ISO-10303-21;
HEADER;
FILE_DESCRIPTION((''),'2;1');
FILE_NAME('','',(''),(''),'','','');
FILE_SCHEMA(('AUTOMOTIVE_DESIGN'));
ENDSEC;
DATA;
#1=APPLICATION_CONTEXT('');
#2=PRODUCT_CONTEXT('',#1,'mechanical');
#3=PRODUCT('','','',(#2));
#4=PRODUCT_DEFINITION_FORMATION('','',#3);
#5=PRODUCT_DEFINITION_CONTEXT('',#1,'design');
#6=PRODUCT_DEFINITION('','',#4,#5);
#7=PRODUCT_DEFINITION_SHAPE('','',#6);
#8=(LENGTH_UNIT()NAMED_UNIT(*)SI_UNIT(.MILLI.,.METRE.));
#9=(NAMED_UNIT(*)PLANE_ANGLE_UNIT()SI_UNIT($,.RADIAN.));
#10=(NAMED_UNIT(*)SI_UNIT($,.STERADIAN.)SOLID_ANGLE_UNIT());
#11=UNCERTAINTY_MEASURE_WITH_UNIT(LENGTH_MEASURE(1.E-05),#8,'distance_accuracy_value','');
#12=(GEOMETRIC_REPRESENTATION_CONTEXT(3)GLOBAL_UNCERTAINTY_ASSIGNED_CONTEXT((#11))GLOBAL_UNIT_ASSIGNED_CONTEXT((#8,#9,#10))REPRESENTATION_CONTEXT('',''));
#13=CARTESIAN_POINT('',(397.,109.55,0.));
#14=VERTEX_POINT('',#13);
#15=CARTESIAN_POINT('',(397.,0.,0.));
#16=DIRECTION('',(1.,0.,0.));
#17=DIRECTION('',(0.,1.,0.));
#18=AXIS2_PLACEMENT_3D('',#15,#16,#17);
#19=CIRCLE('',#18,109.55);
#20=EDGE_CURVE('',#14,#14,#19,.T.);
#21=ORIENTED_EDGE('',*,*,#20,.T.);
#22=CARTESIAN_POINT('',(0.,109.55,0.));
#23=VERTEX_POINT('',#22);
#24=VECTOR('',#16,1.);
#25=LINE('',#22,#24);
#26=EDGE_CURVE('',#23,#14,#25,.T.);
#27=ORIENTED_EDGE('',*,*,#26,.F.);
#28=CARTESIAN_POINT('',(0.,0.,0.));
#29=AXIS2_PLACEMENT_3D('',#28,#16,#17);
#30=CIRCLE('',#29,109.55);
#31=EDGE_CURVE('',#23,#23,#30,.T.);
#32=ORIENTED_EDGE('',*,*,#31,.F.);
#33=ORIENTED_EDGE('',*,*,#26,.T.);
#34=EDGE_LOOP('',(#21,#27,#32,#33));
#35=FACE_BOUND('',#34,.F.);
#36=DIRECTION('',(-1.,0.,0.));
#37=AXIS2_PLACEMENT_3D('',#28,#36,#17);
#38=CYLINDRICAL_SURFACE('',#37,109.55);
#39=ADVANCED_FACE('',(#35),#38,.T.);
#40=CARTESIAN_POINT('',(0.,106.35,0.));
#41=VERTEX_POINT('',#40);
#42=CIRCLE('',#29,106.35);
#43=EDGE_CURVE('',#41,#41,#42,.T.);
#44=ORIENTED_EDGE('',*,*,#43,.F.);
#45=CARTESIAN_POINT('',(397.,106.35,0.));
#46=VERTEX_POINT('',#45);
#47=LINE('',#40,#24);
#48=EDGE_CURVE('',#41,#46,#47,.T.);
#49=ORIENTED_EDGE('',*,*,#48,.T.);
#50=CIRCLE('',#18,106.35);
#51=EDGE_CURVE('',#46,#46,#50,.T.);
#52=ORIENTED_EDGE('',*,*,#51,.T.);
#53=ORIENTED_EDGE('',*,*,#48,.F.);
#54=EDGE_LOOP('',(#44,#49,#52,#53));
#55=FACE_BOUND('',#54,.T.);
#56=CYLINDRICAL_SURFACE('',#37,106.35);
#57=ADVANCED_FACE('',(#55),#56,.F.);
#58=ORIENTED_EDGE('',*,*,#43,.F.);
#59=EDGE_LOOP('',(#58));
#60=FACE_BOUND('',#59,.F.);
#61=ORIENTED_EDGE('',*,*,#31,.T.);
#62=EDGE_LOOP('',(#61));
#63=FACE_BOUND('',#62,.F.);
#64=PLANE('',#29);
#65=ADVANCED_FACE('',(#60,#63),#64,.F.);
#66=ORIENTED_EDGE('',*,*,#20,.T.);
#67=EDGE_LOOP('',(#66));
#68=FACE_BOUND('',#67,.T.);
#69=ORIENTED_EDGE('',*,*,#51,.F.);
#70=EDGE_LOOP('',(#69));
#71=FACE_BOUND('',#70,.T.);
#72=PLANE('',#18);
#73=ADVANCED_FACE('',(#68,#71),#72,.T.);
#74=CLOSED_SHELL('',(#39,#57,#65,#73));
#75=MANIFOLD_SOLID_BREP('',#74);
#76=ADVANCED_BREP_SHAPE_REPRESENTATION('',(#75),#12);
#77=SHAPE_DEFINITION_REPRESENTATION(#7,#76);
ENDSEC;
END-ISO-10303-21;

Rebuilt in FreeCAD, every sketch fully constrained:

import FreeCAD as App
import Part
import Sketcher

V = App.Vector

doc = App.newDocument("Part")
body = doc.addObject("PartDesign::Body", "Body")

# Sketch on YZ plane
sketch1 = doc.addObject("Sketcher::SketchObject", "Sketch")
body.addObject(sketch1)
sketch1.AttachmentSupport = (doc.YZ_Plane, [""])
sketch1.MapMode = "FlatFace"
sketch1.addGeometry([
    Part.Circle(V(0, 0, 0), V(0, 0, 1), 110),
    Part.Circle(V(0, 0, 0), V(0, 0, 1), 106),
], False)
sketch1.addConstraint([
    Sketcher.Constraint("Coincident", 0, 3, -1, 1),
    Sketcher.Constraint("Coincident", 1, 3, -1, 1),
    Sketcher.Constraint("Diameter", 0, 219.1),
    Sketcher.Constraint("Diameter", 1, 212.7),
])
pad1 = doc.addObject("PartDesign::Pad", "Pad")
body.addObject(pad1)
pad1.Profile = sketch1
pad1.Length = 397

doc.recompute()
